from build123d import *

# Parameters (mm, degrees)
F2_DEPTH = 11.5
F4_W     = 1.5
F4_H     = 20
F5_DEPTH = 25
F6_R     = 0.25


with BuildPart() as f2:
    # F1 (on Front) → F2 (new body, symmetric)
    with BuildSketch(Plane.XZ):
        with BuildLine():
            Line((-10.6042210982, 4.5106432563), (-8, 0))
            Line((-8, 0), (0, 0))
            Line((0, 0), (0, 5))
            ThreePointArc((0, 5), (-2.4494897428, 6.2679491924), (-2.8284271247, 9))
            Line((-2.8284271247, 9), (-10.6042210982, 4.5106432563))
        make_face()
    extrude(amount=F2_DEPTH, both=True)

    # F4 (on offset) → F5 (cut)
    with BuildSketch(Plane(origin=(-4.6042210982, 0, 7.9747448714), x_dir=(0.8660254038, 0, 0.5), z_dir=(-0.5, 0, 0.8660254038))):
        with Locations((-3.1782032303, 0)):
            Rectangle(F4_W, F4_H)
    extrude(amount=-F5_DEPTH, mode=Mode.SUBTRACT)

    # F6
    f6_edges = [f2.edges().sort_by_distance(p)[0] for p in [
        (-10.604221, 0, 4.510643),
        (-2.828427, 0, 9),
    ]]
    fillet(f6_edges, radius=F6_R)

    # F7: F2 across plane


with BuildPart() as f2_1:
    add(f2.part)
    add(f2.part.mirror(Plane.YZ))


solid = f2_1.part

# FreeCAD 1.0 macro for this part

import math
import FreeCAD as App
import Part
import Sketcher

V = App.Vector
Q = App.Units.Quantity


def edges_at(feature, points):
    """Names of the edges that pass closest to the given points."""
    edges = feature.Shape.Edges
    near = lambda p: min(range(len(edges)), key=lambda i: edges[i].distToShape(Part.Vertex(*p))[0])
    return sorted({f"Edge{near(p) + 1}" for p in points})

doc = App.newDocument("Part")
params = doc.addObject("Spreadsheet::Sheet", "Params")
for row, (alias, value) in enumerate([
    ("sketch1_radius", "3 mm"),
    ("sketch1_width", "8 mm"),
    ("sketch1_height", "5 mm"),
    ("pad1_length", "23 mm"),
    ("sketch2_height", "20 mm"),
    ("sketch2_width", "1.5 mm"),
    ("pocket1_length", "25 mm"),
    ("fillet_radius", "0.25 mm"),
], start=1):
    params.set(f"A{row}", alias)
    params.set(f"B{row}", "=" + value)
    params.setAlias(f"B{row}", alias)

body = doc.addObject("PartDesign::Body", "Body")

# Sketch on XZ plane
sketch1 = body.newObject("Sketcher::SketchObject", "Sketch")
sketch1.AttachmentSupport = (doc.getObject("XZ_Plane"), [""])
sketch1.MapMode = "FlatFace"
sketch1.addGeometry([
    Part.LineSegment(V(-10.6, 4.5, 0), V(-8, 0, 0)),  # 0
    Part.LineSegment(V(-8, 0, 0), V(0, 0, 0)),  # 1
    Part.LineSegment(V(0, 0, 0), V(0, 5, 0)),  # 2
    Part.ArcOfCircle(Part.Circle(V(0, 8, 0), V(0, 0, 1), 3), math.radians(161), math.radians(270)),  # 3
    Part.LineSegment(V(-2.8, 9, 0), V(-10.6, 4.5, 0)),  # 4
], False)
sketch1.addConstraint([
    Sketcher.Constraint("Coincident", 0, 2, 1, 1),
    Sketcher.Constraint("Coincident", 1, 2, 2, 1),
    Sketcher.Constraint("Coincident", 2, 2, 3, 2),
    Sketcher.Constraint("Coincident", 3, 1, 4, 1),
    Sketcher.Constraint("Coincident", 4, 2, 0, 1),
    Sketcher.Constraint("Horizontal", 1),
    Sketcher.Constraint("Vertical", 2),
    Sketcher.Constraint("Coincident", 1, 2, -1, 1),
    Sketcher.Constraint("PointOnObject", 3, 3, -2),
    Sketcher.Constraint("Perpendicular", 0, 4),
    Sketcher.Constraint("Radius", 3, 3.0),
    Sketcher.Constraint("DistanceX", 1, 1, 1, 2, 8.0),
    Sketcher.Constraint("DistanceY", 2, 1, 2, 2, 5.0),
    Sketcher.Constraint("Angle", 0, Q("-60 deg")),
    Sketcher.Constraint("DistanceY", -1, 1, 3, 1, 9.0),
])
sketch1.setExpression("Constraints[10]", "Params.sketch1_radius")
sketch1.setExpression("Constraints[11]", "Params.sketch1_width")
sketch1.setExpression("Constraints[12]", "Params.sketch1_height")
pad1 = body.newObject("PartDesign::Pad", "Pad")
pad1.Profile = sketch1
pad1.setExpression("Length", "Params.pad1_length")
pad1.Midplane = True

# Sketch on an angled plane
sketch2 = body.newObject("Sketcher::SketchObject", "Sketch001")
sketch2.Placement = App.Placement(V(-4.604221, 0, 7.974745), App.Rotation(V(0.866025404, 0, 0.5), V(0, 1, 0), V(-0.5, 0, 0.866025404), "ZXY"))
sketch2.addGeometry([
    Part.LineSegment(V(-3.9, 10, 0), V(-3.9, -10, 0)),
    Part.LineSegment(V(-3.9, -10, 0), V(-2.4, -10, 0)),
    Part.LineSegment(V(-2.4, -10, 0), V(-2.4, 10, 0)),
    Part.LineSegment(V(-2.4, 10, 0), V(-3.9, 10, 0)),
], False)
sketch2.addConstraint([
    Sketcher.Constraint("Coincident", 0, 2, 1, 1),
    Sketcher.Constraint("Coincident", 1, 2, 2, 1),
    Sketcher.Constraint("Coincident", 2, 2, 3, 1),
    Sketcher.Constraint("Coincident", 3, 2, 0, 1),
    Sketcher.Constraint("Vertical", 0),
    Sketcher.Constraint("Horizontal", 1),
    Sketcher.Constraint("Vertical", 2),
    Sketcher.Constraint("Horizontal", 3),
    Sketcher.Constraint("DistanceY", 0, 2, 0, 1, 20.0),
    Sketcher.Constraint("DistanceX", 1, 1, 1, 2, 1.5),
    Sketcher.Constraint("DistanceY", 0, 2, -1, 1, 10.0),
    Sketcher.Constraint("DistanceX", 0, 2, -1, 1, 3.928203),
])
sketch2.setExpression("Constraints[8]", "Params.sketch2_height")
sketch2.setExpression("Constraints[9]", "Params.sketch2_width")
pocket1 = body.newObject("PartDesign::Pocket", "Pocket")
pocket1.Profile = sketch2
pocket1.setExpression("Length", "Params.pocket1_length")
doc.recompute()

fillet = body.newObject("PartDesign::Fillet", "Fillet")
fillet.Base = (pocket1, edges_at(pocket1, [(-10.604, 0, 4.511), (-2.828, 0, 9)]))
fillet.setExpression("Radius", "Params.fillet_radius")
body2 = doc.addObject("PartDesign::Body", "Body001")
doc.recompute()

body2.BaseFeature = body
doc.recompute()

mirroring = doc.addObject("Part::Mirroring", "Mirroring")
mirroring.Source = body
mirroring.Base = V(0, 0, 0)
mirroring.Normal = V(1, 0, 0)
body3 = doc.addObject("PartDesign::Body", "Body002")
body3.BaseFeature = mirroring
boolean = body2.newObject("PartDesign::Boolean", "Boolean")
boolean.Type = "Fuse"
boolean.addObjects([body3])
doc.recompute()
mirroring.Visibility = False

doc.recompute()
